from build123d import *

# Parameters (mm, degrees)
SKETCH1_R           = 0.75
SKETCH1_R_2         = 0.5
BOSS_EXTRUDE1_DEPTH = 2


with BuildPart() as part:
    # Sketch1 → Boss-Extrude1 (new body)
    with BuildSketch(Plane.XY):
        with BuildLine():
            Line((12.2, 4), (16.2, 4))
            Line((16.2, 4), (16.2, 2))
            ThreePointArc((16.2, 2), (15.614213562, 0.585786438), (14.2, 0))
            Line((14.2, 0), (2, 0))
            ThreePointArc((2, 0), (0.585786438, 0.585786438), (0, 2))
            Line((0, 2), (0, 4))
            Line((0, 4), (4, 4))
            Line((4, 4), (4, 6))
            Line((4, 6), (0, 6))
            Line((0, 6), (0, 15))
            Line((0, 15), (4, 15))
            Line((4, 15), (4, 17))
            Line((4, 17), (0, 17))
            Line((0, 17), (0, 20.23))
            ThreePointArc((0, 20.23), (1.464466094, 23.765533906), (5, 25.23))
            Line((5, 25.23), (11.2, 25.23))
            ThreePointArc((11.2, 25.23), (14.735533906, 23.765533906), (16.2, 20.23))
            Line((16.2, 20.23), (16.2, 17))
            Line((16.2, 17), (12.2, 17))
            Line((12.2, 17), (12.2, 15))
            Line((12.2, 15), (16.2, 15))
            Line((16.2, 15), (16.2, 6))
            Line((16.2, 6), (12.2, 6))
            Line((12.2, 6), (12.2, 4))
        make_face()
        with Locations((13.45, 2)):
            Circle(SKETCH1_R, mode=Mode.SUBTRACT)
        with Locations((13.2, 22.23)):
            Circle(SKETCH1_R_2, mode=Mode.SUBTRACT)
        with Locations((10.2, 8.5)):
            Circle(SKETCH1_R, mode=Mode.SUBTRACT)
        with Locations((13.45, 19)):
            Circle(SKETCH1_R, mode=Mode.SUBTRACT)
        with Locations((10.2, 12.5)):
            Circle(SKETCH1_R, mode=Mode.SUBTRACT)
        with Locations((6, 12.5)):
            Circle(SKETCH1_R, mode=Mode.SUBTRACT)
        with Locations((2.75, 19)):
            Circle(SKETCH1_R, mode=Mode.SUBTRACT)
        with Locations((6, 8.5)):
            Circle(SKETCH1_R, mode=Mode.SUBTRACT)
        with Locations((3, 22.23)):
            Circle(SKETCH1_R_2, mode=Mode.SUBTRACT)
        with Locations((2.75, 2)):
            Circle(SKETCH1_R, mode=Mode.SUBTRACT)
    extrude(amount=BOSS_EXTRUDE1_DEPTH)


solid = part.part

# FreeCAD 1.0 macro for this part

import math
import FreeCAD as App
import Part
import Sketcher
Q = App.Units.Quantity

doc = App.newDocument("Part")
body = doc.addObject("PartDesign::Body", "Body")

sketch1 = body.newObject("Sketcher::SketchObject", "Sketch")
sketch1.AttachmentSupport = (doc.getObject("XY_Plane"), [""])
sketch1.MapMode = "FlatFace"
sketch1.addGeometry([
    Part.LineSegment(App.Vector(16.2, 4, 0), App.Vector(12.2, 4, 0)),
    Part.LineSegment(App.Vector(12.2, 4, 0), App.Vector(12.2, 6, 0)),
    Part.LineSegment(App.Vector(12.2, 6, 0), App.Vector(16.2, 6, 0)),
    Part.LineSegment(App.Vector(16.2, 6, 0), App.Vector(16.2, 15, 0)),
    Part.LineSegment(App.Vector(16.2, 15, 0), App.Vector(12.2, 15, 0)),
    Part.LineSegment(App.Vector(12.2, 15, 0), App.Vector(12.2, 17, 0)),
    Part.LineSegment(App.Vector(12.2, 17, 0), App.Vector(16.2, 17, 0)),
    Part.LineSegment(App.Vector(16.2, 17, 0), App.Vector(16.2, 20.2, 0)),
    Part.ArcOfCircle(Part.Circle(App.Vector(11.2, 20.2, 0), App.Vector(0, 0, 1), 5), math.radians(0), math.radians(90)),
    Part.LineSegment(App.Vector(11.2, 25.2, 0), App.Vector(5, 25.2, 0)),
    Part.ArcOfCircle(Part.Circle(App.Vector(5, 20.2, 0), App.Vector(0, 0, 1), 5), math.radians(90), math.radians(180)),
    Part.LineSegment(App.Vector(0, 20.2, 0), App.Vector(0, 17, 0)),
    Part.LineSegment(App.Vector(0, 17, 0), App.Vector(4, 17, 0)),
    Part.LineSegment(App.Vector(4, 17, 0), App.Vector(4, 15, 0)),
    Part.LineSegment(App.Vector(4, 15, 0), App.Vector(0, 15, 0)),
    Part.LineSegment(App.Vector(0, 15, 0), App.Vector(0, 6, 0)),
    Part.LineSegment(App.Vector(0, 6, 0), App.Vector(4, 6, 0)),
    Part.LineSegment(App.Vector(4, 6, 0), App.Vector(4, 4, 0)),
    Part.LineSegment(App.Vector(4, 4, 0), App.Vector(0, 4, 0)),
    Part.LineSegment(App.Vector(0, 4, 0), App.Vector(0, 2, 0)),
    Part.ArcOfCircle(Part.Circle(App.Vector(2, 2, 0), App.Vector(0, 0, 1), 2), math.radians(-180), math.radians(-90)),
    Part.LineSegment(App.Vector(2, 0, 0), App.Vector(14.2, 0, 0)),
    Part.ArcOfCircle(Part.Circle(App.Vector(14.2, 2, 0), App.Vector(0, 0, 1), 2), math.radians(-90), math.radians(0)),
    Part.LineSegment(App.Vector(16.2, 2, 0), App.Vector(16.2, 4, 0)),
    Part.Circle(App.Vector(13.4, 2, 0), App.Vector(0, 0, 1), 0.8),
    Part.Circle(App.Vector(10.2, 8.5, 0), App.Vector(0, 0, 1), 0.8),
    Part.Circle(App.Vector(2.8, 2, 0), App.Vector(0, 0, 1), 0.8),
    Part.Circle(App.Vector(6, 8.5, 0), App.Vector(0, 0, 1), 0.8),
    Part.Circle(App.Vector(10.2, 12.5, 0), App.Vector(0, 0, 1), 0.8),
    Part.Circle(App.Vector(13.4, 19, 0), App.Vector(0, 0, 1), 0.8),
    Part.Circle(App.Vector(13.2, 22.2, 0), App.Vector(0, 0, 1), 0.5),
    Part.Circle(App.Vector(6, 12.5, 0), App.Vector(0, 0, 1), 0.8),
    Part.Circle(App.Vector(2.8, 19, 0), App.Vector(0, 0, 1), 0.8),
    Part.Circle(App.Vector(3, 22.2, 0), App.Vector(0, 0, 1), 0.5),
], False)
sketch1.addConstraint([
    Sketcher.Constraint("Coincident", 0, 2, 1, 1),
    Sketcher.Constraint("Coincident", 1, 2, 2, 1),
    Sketcher.Constraint("Coincident", 2, 2, 3, 1),
    Sketcher.Constraint("Coincident", 3, 2, 4, 1),
    Sketcher.Constraint("Coincident", 4, 2, 5, 1),
    Sketcher.Constraint("Coincident", 5, 2, 6, 1),
    Sketcher.Constraint("Coincident", 6, 2, 7, 1),
    Sketcher.Constraint("Tangent", 7, 2, 8, 1),
    Sketcher.Constraint("Tangent", 8, 2, 9, 1),
    Sketcher.Constraint("Tangent", 9, 2, 10, 1),
    Sketcher.Constraint("Tangent", 10, 2, 11, 1),
    Sketcher.Constraint("Coincident", 11, 2, 12, 1),
    Sketcher.Constraint("Coincident", 12, 2, 13, 1),
    Sketcher.Constraint("Coincident", 13, 2, 14, 1),
    Sketcher.Constraint("Coincident", 14, 2, 15, 1),
    Sketcher.Constraint("Coincident", 15, 2, 16, 1),
    Sketcher.Constraint("Coincident", 16, 2, 17, 1),
    Sketcher.Constraint("Coincident", 17, 2, 18, 1),
    Sketcher.Constraint("Coincident", 18, 2, 19, 1),
    Sketcher.Constraint("Tangent", 19, 2, 20, 1),
    Sketcher.Constraint("Tangent", 20, 2, 21, 1),
    Sketcher.Constraint("Tangent", 21, 2, 22, 1),
    Sketcher.Constraint("Tangent", 22, 2, 23, 1),
    Sketcher.Constraint("Coincident", 23, 2, 0, 1),
    Sketcher.Constraint("Horizontal", 0),
    Sketcher.Constraint("Vertical", 1),
    Sketcher.Constraint("Horizontal", 2),
    Sketcher.Constraint("Vertical", 3),
    Sketcher.Constraint("Horizontal", 4),
    Sketcher.Constraint("Vertical", 5),
    Sketcher.Constraint("Horizontal", 6),
    Sketcher.Constraint("Vertical", 7),
    Sketcher.Constraint("Horizontal", 9),
    Sketcher.Constraint("Vertical", 11),
    Sketcher.Constraint("Horizontal", 12),
    Sketcher.Constraint("Vertical", 13),
    Sketcher.Constraint("Horizontal", 14),
    Sketcher.Constraint("Vertical", 15),
    Sketcher.Constraint("Horizontal", 16),
    Sketcher.Constraint("Vertical", 17),
    Sketcher.Constraint("Horizontal", 18),
    Sketcher.Constraint("Vertical", 19),
    Sketcher.Constraint("Horizontal", 21),
    Sketcher.Constraint("Vertical", 23),
    Sketcher.Constraint("Equal", 8, 10),
    Sketcher.Constraint("Equal", 20, 22),
    Sketcher.Constraint("Equal", 24, 25),
    Sketcher.Constraint("Equal", 25, 26),
    Sketcher.Constraint("Equal", 26, 27),
    Sketcher.Constraint("Equal", 27, 28),
    Sketcher.Constraint("Equal", 28, 29),
    Sketcher.Constraint("Equal", 29, 31),
    Sketcher.Constraint("Equal", 31, 32),
    Sketcher.Constraint("Equal", 30, 33),
    Sketcher.Constraint("PointOnObject", 10, 2, -2),
    Sketcher.Constraint("PointOnObject", 14, 2, -2),
    Sketcher.Constraint("PointOnObject", 18, 2, -2),
    Sketcher.Constraint("PointOnObject", 20, 2, -1),
    Sketcher.Constraint("Horizontal", 22, 3, 24, 3),
    Sketcher.Constraint("Horizontal", 24, 3, 26, 3),
    Sketcher.Constraint("Horizontal", 25, 3, 27, 3),
    Sketcher.Constraint("Horizontal", 28, 3, 31, 3),
    Sketcher.Constraint("Horizontal", 29, 3, 32, 3),
    Sketcher.Constraint("Horizontal", 30, 3, 33, 3),
    Sketcher.Constraint("Horizontal", 6, 2, 11, 2),
    Sketcher.Constraint("Horizontal", 4, 2, 13, 2),
    Sketcher.Constraint("Horizontal", 2, 2, 15, 2),
    Sketcher.Constraint("Horizontal", 0, 2, 17, 2),
    Sketcher.Constraint("Vertical", 25, 3, 28, 3),
    Sketcher.Constraint("Vertical", 24, 3, 29, 3),
    Sketcher.Constraint("Vertical", 27, 3, 31, 3),
    Sketcher.Constraint("Vertical", 26, 3, 32, 3),
    Sketcher.Constraint("Vertical", 1, 2, 4, 2),
    Sketcher.Constraint("Vertical", 3, 2, 6, 2),
    Sketcher.Constraint("Vertical", 13, 2, 16, 2),
    Sketcher.Constraint("Vertical", 7, 2, 22, 2),
    Sketcher.Constraint("Equal", 6, 12),
    Sketcher.Constraint("Equal", 1, 5),
    Sketcher.Constraint("Equal", 17, 19),
    Sketcher.Constraint("Diameter", 30, Q("1 mm")),
    Sketcher.Constraint("Radius", 8, Q("5 mm")),
    Sketcher.Constraint("Radius", 20, Q("2 mm")),
    Sketcher.Constraint("Diameter", 24, Q("1.5 mm")),
    Sketcher.Constraint("DistanceX", 0, 2, 0, 1, Q("4 mm")),
    Sketcher.Constraint("DistanceY", 1, 1, 1, 2, Q("2 mm")),
    Sketcher.Constraint("DistanceY", 3, 1, 3, 2, Q("9 mm")),
    Sketcher.Constraint("DistanceX", 9, 2, 9, 1, Q("6.2 mm")),
    Sketcher.Constraint("DistanceX", -1, 1, 27, 3, Q("6 mm")),
    Sketcher.Constraint("DistanceY", -1, 1, 29, 3, Q("19 mm")),
    Sketcher.Constraint("DistanceX", -1, 1, 33, 3, Q("3 mm")),
    Sketcher.Constraint("DistanceX", 25, 3, 22, 3, Q("4 mm")),
    Sketcher.Constraint("DistanceY", 25, 3, 28, 3, Q("4 mm")),
    Sketcher.Constraint("DistanceX", 8, 3, 30, 3, Q("2 mm")),
    Sketcher.Constraint("DistanceY", 8, 3, 30, 3, Q("2 mm")),
    Sketcher.Constraint("DistanceY", 7, 1, 7, 2, Q("3.23 mm")),
    Sketcher.Constraint("DistanceY", -1, 1, 25, 3, Q("8.5 mm")),
    Sketcher.Constraint("DistanceX", 26, 3, 24, 3, Q("10.7 mm")),
    Sketcher.Constraint("DistanceX", -1, 1, 24, 3, Q("13.45 mm")),
])
pad1 = body.newObject("PartDesign::Pad", "Pad")
pad1.Profile = sketch1
pad1.Length = 2

doc.recompute()
